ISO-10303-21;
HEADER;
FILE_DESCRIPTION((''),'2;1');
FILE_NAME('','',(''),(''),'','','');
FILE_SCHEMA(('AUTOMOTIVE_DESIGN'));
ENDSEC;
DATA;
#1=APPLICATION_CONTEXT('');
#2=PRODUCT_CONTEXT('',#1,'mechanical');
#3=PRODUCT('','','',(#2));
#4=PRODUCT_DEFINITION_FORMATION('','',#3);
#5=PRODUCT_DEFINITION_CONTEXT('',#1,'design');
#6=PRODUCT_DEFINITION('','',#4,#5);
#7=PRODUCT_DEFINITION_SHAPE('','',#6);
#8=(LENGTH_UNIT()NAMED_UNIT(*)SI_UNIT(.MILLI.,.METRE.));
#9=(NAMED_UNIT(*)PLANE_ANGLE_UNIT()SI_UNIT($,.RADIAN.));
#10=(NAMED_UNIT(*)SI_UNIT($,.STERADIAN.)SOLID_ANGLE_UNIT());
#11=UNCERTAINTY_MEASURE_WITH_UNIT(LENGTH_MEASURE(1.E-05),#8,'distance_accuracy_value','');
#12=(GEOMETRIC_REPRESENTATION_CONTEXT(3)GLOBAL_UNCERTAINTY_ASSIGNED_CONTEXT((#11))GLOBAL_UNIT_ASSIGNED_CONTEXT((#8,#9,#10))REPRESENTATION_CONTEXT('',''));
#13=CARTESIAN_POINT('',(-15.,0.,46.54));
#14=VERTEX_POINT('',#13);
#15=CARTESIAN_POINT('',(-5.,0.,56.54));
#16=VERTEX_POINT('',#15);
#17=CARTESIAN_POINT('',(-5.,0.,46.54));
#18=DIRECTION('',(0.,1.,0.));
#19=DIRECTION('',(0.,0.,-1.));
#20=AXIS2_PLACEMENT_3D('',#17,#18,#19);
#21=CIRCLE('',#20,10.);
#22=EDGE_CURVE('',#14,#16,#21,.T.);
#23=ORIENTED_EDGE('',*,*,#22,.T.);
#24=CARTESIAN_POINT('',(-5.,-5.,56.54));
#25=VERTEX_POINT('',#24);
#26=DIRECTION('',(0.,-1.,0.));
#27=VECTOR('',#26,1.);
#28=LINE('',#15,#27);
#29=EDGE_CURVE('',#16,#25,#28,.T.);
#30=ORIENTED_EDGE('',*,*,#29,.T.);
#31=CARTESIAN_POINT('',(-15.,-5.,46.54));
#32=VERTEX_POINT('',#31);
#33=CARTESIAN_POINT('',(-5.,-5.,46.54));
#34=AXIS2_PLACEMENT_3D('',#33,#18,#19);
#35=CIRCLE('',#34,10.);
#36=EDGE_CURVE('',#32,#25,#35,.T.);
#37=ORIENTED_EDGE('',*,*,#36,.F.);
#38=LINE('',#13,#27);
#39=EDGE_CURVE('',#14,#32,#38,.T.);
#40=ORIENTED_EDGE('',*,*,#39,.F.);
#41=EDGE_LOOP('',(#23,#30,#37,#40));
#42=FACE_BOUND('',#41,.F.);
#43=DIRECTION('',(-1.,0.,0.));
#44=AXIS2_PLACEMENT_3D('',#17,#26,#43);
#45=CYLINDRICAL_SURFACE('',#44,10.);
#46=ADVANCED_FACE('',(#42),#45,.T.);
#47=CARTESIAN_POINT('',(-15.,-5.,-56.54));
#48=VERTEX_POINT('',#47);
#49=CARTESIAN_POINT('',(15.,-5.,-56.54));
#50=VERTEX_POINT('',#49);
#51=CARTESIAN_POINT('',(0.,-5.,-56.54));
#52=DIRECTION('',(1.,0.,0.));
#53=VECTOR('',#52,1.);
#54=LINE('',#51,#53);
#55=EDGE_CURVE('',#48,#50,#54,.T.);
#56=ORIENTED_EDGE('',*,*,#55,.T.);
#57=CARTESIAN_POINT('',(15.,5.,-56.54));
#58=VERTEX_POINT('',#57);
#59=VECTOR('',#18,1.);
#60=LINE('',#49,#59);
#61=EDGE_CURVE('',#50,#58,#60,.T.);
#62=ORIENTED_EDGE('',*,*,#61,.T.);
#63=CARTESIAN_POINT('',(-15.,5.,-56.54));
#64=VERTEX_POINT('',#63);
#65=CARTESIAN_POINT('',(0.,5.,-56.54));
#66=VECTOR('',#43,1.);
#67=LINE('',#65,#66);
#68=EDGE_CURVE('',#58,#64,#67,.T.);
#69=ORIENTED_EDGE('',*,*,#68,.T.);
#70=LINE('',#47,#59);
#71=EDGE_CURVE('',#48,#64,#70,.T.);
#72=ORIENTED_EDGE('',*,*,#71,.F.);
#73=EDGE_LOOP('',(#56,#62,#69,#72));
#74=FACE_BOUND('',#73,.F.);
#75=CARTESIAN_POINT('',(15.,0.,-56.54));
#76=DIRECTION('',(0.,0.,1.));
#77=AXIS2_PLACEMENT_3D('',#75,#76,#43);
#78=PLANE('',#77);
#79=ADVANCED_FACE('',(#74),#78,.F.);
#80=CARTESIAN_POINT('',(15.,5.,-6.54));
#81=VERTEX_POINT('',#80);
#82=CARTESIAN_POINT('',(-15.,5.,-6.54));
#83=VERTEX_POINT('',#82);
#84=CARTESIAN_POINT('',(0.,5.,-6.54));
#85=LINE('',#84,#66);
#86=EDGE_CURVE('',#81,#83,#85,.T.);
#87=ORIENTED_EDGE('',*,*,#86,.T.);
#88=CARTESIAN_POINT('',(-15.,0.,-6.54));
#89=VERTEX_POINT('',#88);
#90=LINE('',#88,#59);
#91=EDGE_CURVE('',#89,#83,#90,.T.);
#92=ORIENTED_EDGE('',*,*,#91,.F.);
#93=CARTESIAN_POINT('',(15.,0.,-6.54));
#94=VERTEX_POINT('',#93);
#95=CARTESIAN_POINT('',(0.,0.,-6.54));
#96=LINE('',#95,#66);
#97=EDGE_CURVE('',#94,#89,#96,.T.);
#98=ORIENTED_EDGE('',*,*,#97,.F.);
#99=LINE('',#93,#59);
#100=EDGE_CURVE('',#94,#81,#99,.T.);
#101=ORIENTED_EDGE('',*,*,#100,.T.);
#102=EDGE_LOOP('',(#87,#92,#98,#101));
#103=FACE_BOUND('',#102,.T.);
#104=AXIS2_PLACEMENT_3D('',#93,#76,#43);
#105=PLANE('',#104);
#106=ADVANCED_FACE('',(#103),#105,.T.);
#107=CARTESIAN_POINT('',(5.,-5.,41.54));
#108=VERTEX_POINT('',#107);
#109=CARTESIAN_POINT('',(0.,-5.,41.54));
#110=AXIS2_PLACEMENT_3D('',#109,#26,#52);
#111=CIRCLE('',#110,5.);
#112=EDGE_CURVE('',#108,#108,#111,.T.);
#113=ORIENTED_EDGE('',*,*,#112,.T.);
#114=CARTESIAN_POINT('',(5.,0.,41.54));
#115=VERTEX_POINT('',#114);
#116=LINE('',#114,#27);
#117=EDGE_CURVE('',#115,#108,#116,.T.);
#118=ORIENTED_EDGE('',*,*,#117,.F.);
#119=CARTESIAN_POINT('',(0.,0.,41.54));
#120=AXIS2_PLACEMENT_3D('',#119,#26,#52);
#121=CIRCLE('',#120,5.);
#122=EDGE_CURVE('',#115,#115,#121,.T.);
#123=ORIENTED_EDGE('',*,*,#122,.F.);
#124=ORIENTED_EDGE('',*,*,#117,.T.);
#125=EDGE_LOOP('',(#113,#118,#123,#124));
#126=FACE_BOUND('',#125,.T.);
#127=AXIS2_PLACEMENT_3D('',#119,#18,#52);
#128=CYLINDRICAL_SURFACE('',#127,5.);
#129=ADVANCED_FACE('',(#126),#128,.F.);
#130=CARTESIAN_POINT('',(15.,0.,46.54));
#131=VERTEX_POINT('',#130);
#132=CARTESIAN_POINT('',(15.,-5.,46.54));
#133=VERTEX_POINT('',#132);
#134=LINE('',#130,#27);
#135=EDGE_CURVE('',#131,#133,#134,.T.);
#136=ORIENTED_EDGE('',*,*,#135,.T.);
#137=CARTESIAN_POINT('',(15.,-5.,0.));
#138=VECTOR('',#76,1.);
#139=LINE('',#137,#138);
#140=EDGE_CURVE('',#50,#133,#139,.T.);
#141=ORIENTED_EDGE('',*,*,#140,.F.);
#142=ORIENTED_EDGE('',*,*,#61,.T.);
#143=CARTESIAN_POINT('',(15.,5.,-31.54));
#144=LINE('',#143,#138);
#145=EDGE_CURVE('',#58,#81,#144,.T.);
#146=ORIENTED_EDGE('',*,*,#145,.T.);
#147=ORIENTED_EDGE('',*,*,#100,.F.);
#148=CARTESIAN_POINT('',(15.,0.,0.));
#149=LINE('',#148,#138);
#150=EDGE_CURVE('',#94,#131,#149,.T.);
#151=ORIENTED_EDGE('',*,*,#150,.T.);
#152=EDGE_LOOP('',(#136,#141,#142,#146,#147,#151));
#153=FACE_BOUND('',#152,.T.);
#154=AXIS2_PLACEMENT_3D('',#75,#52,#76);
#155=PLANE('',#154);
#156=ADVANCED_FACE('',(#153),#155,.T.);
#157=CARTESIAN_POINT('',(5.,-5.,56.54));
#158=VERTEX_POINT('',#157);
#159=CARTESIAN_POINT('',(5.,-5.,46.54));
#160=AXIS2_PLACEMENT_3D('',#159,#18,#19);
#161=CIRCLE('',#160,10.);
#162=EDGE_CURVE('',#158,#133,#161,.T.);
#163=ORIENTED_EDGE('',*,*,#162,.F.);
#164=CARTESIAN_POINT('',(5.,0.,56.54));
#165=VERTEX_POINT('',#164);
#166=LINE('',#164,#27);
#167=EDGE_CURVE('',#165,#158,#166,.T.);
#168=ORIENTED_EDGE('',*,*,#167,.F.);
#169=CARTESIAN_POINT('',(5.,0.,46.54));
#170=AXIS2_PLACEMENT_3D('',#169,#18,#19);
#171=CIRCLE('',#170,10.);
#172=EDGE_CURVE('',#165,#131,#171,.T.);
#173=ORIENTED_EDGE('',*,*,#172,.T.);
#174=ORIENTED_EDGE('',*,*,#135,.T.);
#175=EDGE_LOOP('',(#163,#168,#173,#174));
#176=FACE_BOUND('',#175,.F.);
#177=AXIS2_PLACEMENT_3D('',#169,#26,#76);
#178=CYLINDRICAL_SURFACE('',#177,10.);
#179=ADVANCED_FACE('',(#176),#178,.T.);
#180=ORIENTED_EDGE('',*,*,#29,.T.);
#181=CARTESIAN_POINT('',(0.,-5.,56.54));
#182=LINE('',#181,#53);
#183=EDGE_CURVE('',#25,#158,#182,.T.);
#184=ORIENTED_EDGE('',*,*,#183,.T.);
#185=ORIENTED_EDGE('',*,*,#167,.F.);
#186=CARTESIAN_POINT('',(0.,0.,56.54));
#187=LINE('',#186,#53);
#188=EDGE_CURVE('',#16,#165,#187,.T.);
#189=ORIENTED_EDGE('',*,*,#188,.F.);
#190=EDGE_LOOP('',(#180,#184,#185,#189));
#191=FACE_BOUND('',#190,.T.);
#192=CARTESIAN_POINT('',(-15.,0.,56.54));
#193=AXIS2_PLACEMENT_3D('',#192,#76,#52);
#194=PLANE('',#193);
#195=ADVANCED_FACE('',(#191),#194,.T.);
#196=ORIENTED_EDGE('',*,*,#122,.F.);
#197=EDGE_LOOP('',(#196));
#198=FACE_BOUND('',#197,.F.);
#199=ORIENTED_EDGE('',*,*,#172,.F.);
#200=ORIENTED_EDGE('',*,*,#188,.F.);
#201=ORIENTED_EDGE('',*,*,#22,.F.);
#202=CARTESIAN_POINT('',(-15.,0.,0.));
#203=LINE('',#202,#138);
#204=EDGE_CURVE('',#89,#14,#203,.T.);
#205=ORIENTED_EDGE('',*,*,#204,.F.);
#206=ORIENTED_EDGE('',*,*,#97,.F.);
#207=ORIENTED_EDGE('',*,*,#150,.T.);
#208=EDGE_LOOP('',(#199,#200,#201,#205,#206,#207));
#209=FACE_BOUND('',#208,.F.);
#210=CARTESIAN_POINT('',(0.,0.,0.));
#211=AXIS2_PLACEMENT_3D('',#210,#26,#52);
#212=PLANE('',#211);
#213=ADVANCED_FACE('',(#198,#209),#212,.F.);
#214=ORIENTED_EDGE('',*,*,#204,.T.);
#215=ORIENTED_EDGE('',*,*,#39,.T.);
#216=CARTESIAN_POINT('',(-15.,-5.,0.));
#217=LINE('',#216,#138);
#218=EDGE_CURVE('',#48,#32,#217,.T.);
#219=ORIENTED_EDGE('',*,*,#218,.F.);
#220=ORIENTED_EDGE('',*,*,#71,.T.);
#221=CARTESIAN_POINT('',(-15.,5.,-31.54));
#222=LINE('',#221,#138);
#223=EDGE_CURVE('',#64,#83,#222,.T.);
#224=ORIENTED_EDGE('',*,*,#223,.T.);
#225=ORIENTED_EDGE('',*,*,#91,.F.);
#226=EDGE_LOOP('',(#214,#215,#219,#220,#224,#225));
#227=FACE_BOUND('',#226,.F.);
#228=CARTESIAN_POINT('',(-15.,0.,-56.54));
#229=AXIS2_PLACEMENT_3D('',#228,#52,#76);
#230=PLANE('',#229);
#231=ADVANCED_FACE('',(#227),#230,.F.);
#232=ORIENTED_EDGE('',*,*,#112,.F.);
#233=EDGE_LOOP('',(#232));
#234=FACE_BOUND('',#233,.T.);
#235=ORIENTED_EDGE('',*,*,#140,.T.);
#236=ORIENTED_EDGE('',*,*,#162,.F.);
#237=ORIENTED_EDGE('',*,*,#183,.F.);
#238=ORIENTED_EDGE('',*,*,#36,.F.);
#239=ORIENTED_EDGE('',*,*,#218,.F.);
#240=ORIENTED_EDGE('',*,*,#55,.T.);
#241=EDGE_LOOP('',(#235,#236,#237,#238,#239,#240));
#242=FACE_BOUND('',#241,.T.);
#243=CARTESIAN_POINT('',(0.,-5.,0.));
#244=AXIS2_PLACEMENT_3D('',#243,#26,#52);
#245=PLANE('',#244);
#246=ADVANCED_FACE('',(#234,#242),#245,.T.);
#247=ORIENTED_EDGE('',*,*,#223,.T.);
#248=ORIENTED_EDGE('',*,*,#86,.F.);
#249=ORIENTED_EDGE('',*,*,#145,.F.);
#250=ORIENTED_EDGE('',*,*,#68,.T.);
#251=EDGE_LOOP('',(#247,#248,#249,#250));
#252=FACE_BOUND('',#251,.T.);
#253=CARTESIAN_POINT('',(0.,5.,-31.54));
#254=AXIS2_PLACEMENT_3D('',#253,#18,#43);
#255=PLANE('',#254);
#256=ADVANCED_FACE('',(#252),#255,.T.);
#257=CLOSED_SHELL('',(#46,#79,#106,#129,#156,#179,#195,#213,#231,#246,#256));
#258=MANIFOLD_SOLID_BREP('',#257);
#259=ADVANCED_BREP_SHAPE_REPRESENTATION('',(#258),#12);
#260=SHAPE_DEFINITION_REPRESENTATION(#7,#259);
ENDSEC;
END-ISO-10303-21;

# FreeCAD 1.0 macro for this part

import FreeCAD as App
import Part
import Sketcher
from FreeCAD import Vector
Q = App.Units.Quantity


def edges_at(feature, points):
    """Names of the edges that pass closest to the given points."""
    edges = feature.Shape.Edges
    near = lambda p: min(range(len(edges)), key=lambda i: edges[i].distToShape(Part.Vertex(*p))[0])
    return sorted({f"Edge{near(p) + 1}" for p in points})


def add_polygon(sketch, points):
    """Adds a closed chain of lines whose ends are joined by coincident constraints."""
    first, n = sketch.GeometryCount, len(points)
    for a, b in zip(points, points[1:] + points[:1]):
        sketch.addGeometry(Part.LineSegment(App.Vector(*a, 0), App.Vector(*b, 0)), False)
    for i in range(n):
        sketch.addConstraint(Sketcher.Constraint("Coincident", first + i, 2, first + (i + 1) % n, 1))

doc = App.newDocument("Part")
body = doc.addObject("PartDesign::Body", "Body")

# Sketch on XZ plane
sketch1 = doc.addObject("Sketcher::SketchObject", "Sketch")
body.addObject(sketch1)
sketch1.AttachmentSupport = (doc.XZ_Plane, [""])
sketch1.MapMode = "FlatFace"
add_polygon(sketch1, [(-15, 57), (-15, -57), (15, -57), (15, 57)])  # lines 0-3
sketch1.addGeometry(Part.Circle(Vector(0, 42, 0), Vector(0, 0, 1), 5), False)  # 4
sketch1.addConstraint(Sketcher.Constraint("Vertical", 0))
sketch1.addConstraint(Sketcher.Constraint("Horizontal", 1))
sketch1.addConstraint(Sketcher.Constraint("Vertical", 2))
sketch1.addConstraint(Sketcher.Constraint("Horizontal", 3))
sketch1.addConstraint(Sketcher.Constraint("Symmetric", 0, 2, 2, 2, -1, 1))
sketch1.addConstraint(Sketcher.Constraint("PointOnObject", 4, 3, -2))
sketch1.addConstraint(Sketcher.Constraint("Diameter", 4, Q("10 mm")))
sketch1.addConstraint(Sketcher.Constraint("DistanceX", 1, 1, 1, 2, Q("30 mm")))
sketch1.addConstraint(Sketcher.Constraint("DistanceY", 4, 3, 2, 2, Q("15 mm")))
sketch1.addConstraint(Sketcher.Constraint("DistanceY", 0, 2, 0, 1, Q("113.08 mm")))
pad1 = doc.addObject("PartDesign::Pad", "Pad")
body.addObject(pad1)
pad1.Profile = sketch1
pad1.Length = 5
doc.recompute()

fillet = doc.addObject("PartDesign::Fillet", "Fillet")
body.addObject(fillet)
fillet.Base = (pad1, edges_at(pad1, [(15, -2.5, 56.54), (-15, -2.5, 56.54)]))
fillet.Radius = 10

# Sketch on XZ plane
sketch2 = doc.addObject("Sketcher::SketchObject", "Sketch001")
body.addObject(sketch2)
sketch2.AttachmentSupport = (doc.XZ_Plane, [""])
sketch2.MapMode = "FlatFace"
add_polygon(sketch2, [(15, -7), (15, -57), (-15, -57), (-15, -7)])  # lines 0-3
sketch2.addConstraint(Sketcher.Constraint("Vertical", 0))
sketch2.addConstraint(Sketcher.Constraint("Horizontal", 1))
sketch2.addConstraint(Sketcher.Constraint("Vertical", 2))
sketch2.addConstraint(Sketcher.Constraint("Horizontal", 3))
sketch2.addConstraint(Sketcher.Constraint("DistanceX", 1, 2, 1, 1, Q("30 mm")))
sketch2.addConstraint(Sketcher.Constraint("DistanceY", 0, 2, 0, 1, Q("50 mm")))
sketch2.addConstraint(Sketcher.Constraint("DistanceX", -1, 1, 0, 2, Q("15 mm")))
sketch2.addConstraint(Sketcher.Constraint("DistanceY", 0, 2, -1, 1, Q("56.54 mm")))
pad2 = doc.addObject("PartDesign::Pad", "Pad001")
body.addObject(pad2)
pad2.Profile = sketch2
pad2.Length = 5
pad2.Reversed = True

doc.recompute()
